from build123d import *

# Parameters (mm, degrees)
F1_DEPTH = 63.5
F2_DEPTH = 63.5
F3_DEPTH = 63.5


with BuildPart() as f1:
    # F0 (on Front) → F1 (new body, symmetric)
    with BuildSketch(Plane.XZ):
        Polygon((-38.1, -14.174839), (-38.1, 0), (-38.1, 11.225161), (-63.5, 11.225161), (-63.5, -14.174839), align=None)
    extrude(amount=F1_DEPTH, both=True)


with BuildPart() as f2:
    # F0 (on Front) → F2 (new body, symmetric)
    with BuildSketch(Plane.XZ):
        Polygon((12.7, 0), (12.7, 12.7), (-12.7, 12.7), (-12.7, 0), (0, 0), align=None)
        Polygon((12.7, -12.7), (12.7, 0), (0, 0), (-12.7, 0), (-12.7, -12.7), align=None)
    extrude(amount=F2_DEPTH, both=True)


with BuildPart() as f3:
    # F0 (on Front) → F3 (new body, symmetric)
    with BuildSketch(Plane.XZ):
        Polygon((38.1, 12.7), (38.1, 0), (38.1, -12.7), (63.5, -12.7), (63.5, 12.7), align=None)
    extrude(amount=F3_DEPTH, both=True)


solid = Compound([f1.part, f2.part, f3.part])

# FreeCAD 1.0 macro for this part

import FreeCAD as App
import Part
import Sketcher
from FreeCAD import Vector
Q = App.Units.Quantity


def add_polygon(sketch, points):
    """Adds a closed chain of lines whose ends are joined by coincident constraints."""
    first, n = sketch.GeometryCount, len(points)
    for a, b in zip(points, points[1:] + points[:1]):
        sketch.addGeometry(Part.LineSegment(App.Vector(*a, 0), App.Vector(*b, 0)), False)
    for i in range(n):
        sketch.addConstraint(Sketcher.Constraint("Coincident", first + i, 2, first + (i + 1) % n, 1))

doc = App.newDocument("Part")
body = doc.addObject("PartDesign::Body", "Body")

sketch1 = body.newObject("Sketcher::SketchObject", "Sketch")
sketch1.AttachmentSupport = (doc.getObject("XZ_Plane"), [""])
sketch1.MapMode = "FlatFace"
add_polygon(sketch1, [(-38.1, -14.174839), (-38.1, 11.225161), (-63.5, 11.225161), (-63.5, -14.174839)])
sketch1.addConstraint([
    Sketcher.Constraint("Vertical", 0),
    Sketcher.Constraint("Horizontal", 1),
    Sketcher.Constraint("Vertical", 2),
    Sketcher.Constraint("Horizontal", 3),
    Sketcher.Constraint("Equal", 3, 0),
    Sketcher.Constraint("DistanceX", 1, 2, 1, 1, Q("1 in")),
    Sketcher.Constraint("DistanceX", 0, 2, -1, 1, Q("1.5 in")),
    Sketcher.Constraint("DistanceY", -1, 1, 0, 2, 11.225161),
])
pad1 = body.newObject("PartDesign::Pad", "Pad")
pad1.Profile = sketch1
pad1.Length = Q("5 in")
pad1.Midplane = True
body2 = doc.addObject("PartDesign::Body", "Body001")

sketch2 = body2.newObject("Sketcher::SketchObject", "Sketch001")
sketch2.AttachmentSupport = (doc.getObject("XZ_Plane001"), [""])
sketch2.MapMode = "FlatFace"
add_polygon(sketch2, [(12.7, 12.7), (-12.7, 12.7), (-12.7, -12.7), (12.7, -12.7)])
sketch2.addConstraint([
    Sketcher.Constraint("Horizontal", 0),
    Sketcher.Constraint("Vertical", 1),
    Sketcher.Constraint("Horizontal", 2),
    Sketcher.Constraint("Vertical", 3),
    Sketcher.Constraint("Symmetric", 0, 2, 2, 2, -1, 1),
    Sketcher.Constraint("Equal", 2, 1),
    Sketcher.Constraint("DistanceX", 0, 2, 0, 1, Q("1 in")),
])
pad2 = body2.newObject("PartDesign::Pad", "Pad001")
pad2.Profile = sketch2
pad2.Length = Q("5 in")
pad2.Midplane = True
body3 = doc.addObject("PartDesign::Body", "Body002")

sketch3 = body3.newObject("Sketcher::SketchObject", "Sketch002")
sketch3.AttachmentSupport = (doc.getObject("XZ_Plane002"), [""])
sketch3.MapMode = "FlatFace"
add_polygon(sketch3, [(38.1, 12.7), (38.1, -12.7), (63.5, -12.7), (63.5, 12.7)])
sketch3.addConstraint([
    Sketcher.Constraint("Vertical", 0),
    Sketcher.Constraint("Horizontal", 1),
    Sketcher.Constraint("Vertical", 2),
    Sketcher.Constraint("Horizontal", 3),
    Sketcher.Constraint("Equal", 3, 0),
    Sketcher.Constraint("DistanceX", 1, 1, 1, 2, Q("1 in")),
    Sketcher.Constraint("DistanceX", -1, 1, 0, 2, Q("1.5 in")),
    Sketcher.Constraint("DistanceY", 0, 2, -1, 1, Q("0.5 in")),
])
pad3 = body3.newObject("PartDesign::Pad", "Pad002")
pad3.Profile = sketch3
pad3.Length = Q("5 in")
pad3.Midplane = True

doc.recompute()
